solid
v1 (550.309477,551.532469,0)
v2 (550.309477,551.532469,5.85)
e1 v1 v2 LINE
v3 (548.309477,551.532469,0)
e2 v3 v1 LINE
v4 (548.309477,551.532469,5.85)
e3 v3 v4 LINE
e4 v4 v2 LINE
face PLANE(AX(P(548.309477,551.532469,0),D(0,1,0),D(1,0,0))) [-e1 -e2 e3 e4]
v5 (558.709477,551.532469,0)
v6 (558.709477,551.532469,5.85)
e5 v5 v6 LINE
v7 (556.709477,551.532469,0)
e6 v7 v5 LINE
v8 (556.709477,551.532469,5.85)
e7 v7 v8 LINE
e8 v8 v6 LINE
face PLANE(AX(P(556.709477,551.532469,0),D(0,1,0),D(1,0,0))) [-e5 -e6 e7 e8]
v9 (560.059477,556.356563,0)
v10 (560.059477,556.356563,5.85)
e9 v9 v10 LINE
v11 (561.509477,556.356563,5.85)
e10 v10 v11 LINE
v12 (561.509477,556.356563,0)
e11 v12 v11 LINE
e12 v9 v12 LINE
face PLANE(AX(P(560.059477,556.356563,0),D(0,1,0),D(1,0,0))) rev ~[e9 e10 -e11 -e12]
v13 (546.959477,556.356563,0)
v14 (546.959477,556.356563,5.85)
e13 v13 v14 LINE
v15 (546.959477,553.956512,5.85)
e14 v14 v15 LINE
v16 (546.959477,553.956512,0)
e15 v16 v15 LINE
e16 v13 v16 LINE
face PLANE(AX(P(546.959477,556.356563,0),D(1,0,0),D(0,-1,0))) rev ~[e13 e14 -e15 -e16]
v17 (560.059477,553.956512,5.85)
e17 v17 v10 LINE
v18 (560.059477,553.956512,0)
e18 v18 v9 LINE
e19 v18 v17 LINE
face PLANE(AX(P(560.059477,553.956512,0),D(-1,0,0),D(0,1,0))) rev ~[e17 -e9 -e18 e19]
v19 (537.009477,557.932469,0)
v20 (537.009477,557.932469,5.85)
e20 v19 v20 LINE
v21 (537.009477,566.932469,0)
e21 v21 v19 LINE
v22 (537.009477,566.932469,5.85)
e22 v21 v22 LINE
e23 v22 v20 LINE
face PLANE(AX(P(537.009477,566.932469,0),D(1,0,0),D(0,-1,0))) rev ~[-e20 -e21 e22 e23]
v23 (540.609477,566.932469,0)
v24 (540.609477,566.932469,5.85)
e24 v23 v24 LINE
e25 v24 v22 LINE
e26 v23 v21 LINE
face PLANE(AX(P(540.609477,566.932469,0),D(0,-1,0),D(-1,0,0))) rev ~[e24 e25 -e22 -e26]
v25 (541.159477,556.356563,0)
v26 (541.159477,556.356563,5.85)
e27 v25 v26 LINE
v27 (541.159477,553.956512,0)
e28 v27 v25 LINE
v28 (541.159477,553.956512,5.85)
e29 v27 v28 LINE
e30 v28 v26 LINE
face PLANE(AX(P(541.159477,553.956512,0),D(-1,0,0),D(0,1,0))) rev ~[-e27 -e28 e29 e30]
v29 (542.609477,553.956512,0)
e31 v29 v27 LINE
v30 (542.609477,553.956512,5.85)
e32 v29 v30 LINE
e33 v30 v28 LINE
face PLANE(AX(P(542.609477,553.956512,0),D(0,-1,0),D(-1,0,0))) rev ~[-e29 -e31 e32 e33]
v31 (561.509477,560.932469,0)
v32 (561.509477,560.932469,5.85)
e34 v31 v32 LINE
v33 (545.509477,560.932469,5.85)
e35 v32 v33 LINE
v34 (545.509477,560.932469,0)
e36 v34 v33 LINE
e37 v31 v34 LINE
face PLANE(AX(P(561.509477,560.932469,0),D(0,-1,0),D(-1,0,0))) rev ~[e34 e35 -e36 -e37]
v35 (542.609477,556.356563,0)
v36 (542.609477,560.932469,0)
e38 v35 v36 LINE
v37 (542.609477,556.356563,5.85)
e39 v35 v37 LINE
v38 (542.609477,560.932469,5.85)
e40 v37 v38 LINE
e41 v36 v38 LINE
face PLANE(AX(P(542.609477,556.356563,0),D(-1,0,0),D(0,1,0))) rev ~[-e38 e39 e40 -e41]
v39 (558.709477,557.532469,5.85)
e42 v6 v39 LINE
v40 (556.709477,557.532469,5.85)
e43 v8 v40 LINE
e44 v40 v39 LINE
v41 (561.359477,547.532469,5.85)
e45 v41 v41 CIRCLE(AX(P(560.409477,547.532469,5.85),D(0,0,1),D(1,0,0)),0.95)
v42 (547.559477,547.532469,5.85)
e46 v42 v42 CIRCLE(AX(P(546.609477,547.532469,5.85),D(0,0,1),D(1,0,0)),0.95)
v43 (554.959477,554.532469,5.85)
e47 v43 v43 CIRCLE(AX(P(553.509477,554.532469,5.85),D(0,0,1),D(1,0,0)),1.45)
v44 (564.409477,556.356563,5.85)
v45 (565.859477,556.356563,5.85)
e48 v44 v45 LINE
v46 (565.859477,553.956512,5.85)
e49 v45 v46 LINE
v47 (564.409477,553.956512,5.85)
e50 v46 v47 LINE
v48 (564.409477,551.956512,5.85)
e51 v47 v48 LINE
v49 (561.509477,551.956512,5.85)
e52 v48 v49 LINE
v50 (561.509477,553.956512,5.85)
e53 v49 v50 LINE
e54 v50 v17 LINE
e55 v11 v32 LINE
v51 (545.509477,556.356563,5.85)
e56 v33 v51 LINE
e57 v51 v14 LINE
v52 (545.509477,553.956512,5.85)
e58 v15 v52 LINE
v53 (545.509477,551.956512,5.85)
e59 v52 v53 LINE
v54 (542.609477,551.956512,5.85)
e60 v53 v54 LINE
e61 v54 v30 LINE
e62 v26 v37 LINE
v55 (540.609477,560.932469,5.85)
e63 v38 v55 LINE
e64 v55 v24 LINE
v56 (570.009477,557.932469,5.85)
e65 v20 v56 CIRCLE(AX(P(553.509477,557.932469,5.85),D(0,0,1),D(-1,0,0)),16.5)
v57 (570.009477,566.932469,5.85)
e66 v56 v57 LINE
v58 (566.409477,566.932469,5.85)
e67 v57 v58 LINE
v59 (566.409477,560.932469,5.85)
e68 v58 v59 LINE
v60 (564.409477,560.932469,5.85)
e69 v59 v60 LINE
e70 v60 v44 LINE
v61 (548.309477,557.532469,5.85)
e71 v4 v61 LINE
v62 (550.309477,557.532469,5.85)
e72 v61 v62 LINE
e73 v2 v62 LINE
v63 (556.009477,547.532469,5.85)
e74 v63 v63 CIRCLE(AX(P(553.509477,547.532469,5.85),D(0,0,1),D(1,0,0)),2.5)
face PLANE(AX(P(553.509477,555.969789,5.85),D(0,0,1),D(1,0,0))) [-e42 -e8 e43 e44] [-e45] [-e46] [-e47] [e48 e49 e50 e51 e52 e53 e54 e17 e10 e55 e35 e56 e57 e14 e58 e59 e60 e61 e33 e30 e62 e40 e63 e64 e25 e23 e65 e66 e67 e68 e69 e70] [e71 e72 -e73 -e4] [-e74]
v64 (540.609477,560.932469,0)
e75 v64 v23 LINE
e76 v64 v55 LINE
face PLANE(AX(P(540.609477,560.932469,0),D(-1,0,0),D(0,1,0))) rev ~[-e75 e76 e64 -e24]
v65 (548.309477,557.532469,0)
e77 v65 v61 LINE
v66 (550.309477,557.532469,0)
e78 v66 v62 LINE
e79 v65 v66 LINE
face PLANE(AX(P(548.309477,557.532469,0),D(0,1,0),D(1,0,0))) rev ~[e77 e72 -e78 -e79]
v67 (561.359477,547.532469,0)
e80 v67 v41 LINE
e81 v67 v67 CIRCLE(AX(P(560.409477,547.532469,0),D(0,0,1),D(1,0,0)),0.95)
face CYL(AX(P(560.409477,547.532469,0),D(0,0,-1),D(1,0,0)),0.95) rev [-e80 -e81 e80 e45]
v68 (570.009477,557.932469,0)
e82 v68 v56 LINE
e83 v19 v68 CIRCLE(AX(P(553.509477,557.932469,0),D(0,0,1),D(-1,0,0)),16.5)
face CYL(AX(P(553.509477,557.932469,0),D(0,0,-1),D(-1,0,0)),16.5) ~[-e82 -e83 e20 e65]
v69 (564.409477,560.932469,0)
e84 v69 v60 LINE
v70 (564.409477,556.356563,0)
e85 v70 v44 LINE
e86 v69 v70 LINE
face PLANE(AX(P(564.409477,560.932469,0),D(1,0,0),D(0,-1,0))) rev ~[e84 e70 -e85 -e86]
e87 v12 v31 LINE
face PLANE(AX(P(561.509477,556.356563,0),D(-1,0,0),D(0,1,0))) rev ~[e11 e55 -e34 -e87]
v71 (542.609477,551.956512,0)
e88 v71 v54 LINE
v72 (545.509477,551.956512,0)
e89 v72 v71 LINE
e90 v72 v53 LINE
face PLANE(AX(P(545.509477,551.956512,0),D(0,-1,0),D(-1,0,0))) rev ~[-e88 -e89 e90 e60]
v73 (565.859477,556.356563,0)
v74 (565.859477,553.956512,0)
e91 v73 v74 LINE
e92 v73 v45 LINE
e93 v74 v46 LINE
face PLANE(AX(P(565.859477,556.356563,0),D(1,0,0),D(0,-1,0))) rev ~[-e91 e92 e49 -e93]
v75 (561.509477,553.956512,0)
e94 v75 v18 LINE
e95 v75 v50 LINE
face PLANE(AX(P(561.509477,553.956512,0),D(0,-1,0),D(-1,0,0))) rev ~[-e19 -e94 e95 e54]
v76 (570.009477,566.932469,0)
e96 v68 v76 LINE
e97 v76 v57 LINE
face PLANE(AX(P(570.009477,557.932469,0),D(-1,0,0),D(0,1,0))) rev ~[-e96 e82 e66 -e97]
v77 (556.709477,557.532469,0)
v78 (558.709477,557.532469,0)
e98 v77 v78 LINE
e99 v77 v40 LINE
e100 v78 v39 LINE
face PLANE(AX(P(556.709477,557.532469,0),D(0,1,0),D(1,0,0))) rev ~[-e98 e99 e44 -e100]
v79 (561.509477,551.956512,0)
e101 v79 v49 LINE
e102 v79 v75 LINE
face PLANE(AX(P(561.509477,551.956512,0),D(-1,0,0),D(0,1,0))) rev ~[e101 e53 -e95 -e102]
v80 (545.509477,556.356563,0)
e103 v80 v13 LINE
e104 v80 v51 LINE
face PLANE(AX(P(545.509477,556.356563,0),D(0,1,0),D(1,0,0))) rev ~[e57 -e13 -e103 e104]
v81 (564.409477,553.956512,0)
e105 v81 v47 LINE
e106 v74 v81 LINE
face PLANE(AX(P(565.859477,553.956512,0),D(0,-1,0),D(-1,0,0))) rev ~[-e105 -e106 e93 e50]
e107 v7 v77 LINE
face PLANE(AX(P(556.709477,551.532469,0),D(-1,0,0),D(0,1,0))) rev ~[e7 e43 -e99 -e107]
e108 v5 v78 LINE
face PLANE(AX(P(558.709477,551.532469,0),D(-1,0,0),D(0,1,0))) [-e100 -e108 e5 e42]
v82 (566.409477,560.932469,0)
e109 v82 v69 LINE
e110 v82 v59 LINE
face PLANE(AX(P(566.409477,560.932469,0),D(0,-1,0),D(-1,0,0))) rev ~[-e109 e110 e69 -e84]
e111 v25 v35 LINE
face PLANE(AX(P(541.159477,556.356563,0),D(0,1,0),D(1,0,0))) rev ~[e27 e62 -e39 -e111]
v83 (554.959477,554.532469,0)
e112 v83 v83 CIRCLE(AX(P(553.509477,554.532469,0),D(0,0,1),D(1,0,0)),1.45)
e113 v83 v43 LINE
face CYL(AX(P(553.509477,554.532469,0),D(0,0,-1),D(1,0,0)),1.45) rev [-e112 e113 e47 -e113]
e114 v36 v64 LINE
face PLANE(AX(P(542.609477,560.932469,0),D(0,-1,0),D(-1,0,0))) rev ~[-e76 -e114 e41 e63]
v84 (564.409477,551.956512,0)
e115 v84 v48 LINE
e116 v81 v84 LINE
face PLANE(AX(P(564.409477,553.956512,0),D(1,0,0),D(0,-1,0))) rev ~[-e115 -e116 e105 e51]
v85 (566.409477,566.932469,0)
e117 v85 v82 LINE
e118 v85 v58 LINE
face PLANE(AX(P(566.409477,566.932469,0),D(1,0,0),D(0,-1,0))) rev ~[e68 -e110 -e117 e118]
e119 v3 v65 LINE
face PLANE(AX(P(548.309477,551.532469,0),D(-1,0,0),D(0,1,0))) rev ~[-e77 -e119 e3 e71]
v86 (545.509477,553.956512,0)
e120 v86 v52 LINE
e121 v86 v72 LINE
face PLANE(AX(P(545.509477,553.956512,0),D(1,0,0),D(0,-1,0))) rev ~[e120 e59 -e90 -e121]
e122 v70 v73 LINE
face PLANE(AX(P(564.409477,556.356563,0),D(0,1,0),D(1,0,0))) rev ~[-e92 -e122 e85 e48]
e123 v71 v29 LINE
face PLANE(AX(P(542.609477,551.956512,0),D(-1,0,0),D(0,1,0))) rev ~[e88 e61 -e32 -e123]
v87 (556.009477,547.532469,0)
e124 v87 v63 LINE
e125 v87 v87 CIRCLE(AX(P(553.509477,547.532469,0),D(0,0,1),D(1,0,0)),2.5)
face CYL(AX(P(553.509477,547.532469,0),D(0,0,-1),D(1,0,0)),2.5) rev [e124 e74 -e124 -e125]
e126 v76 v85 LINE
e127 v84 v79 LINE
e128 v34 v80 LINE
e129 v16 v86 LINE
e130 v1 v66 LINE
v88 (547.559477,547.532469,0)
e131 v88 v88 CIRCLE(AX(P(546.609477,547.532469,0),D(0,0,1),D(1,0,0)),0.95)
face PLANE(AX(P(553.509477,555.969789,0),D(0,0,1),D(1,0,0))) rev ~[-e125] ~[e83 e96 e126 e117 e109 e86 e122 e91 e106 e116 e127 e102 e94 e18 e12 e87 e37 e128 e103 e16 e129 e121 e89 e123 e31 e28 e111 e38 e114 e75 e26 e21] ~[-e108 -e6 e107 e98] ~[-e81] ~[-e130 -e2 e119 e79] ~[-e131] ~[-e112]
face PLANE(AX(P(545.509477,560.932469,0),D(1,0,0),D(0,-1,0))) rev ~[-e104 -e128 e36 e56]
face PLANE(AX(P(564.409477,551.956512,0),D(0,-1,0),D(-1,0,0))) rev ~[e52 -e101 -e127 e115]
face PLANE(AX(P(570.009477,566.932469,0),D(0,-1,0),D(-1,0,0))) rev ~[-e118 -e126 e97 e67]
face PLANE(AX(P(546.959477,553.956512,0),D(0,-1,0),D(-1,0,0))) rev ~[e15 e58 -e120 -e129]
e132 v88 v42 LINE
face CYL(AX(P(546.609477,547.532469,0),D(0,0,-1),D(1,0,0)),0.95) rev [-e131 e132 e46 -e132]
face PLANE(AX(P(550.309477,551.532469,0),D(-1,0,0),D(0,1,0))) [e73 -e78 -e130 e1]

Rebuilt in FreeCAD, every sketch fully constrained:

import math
import FreeCAD as App
import Part
import Sketcher
Q = App.Units.Quantity

doc = App.newDocument("Part")
params = doc.addObject("Spreadsheet::Sheet", "Params")
for row, (alias, value) in enumerate([
    ("sketch1_diameter", "5 mm"),
    ("sketch1_diameter2", "1.9 mm"),
    ("sketch1_diameter3", "2.9 mm"),
    ("sketch1_radius", "16.5 mm"),
    ("sketch1_width", "2 mm"),
    ("pad1_length", "5.85 mm"),
], start=1):
    params.set(f"A{row}", alias)
    params.set(f"B{row}", "=" + value)
    params.setAlias(f"B{row}", alias)

body = doc.addObject("PartDesign::Body", "Body")

# Sketch on XY plane
sketch1 = doc.addObject("Sketcher::SketchObject", "Sketch")
body.addObject(sketch1)
sketch1.AttachmentSupport = (doc.XY_Plane, [""])
sketch1.MapMode = "FlatFace"
sketch1.addGeometry([
    Part.LineSegment(App.Vector(545.5, 560.9, 0), App.Vector(545.5, 556.4, 0)),  # 0
    Part.LineSegment(App.Vector(545.5, 556.4, 0), App.Vector(547, 556.4, 0)),  # 1
    Part.LineSegment(App.Vector(547, 556.4, 0), App.Vector(547, 554, 0)),  # 2
    Part.LineSegment(App.Vector(547, 554, 0), App.Vector(545.5, 554, 0)),  # 3
    Part.LineSegment(App.Vector(545.5, 554, 0), App.Vector(545.5, 552, 0)),  # 4
    Part.LineSegment(App.Vector(545.5, 552, 0), App.Vector(542.6, 552, 0)),  # 5
    Part.LineSegment(App.Vector(542.6, 552, 0), App.Vector(542.6, 554, 0)),  # 6
    Part.LineSegment(App.Vector(542.6, 554, 0), App.Vector(541.2, 554, 0)),  # 7
    Part.LineSegment(App.Vector(541.2, 554, 0), App.Vector(541.2, 556.4, 0)),  # 8
    Part.LineSegment(App.Vector(541.2, 556.4, 0), App.Vector(542.6, 556.4, 0)),  # 9
    Part.LineSegment(App.Vector(542.6, 556.4, 0), App.Vector(542.6, 560.9, 0)),  # 10
    Part.LineSegment(App.Vector(542.6, 560.9, 0), App.Vector(540.6, 560.9, 0)),  # 11
    Part.LineSegment(App.Vector(540.6, 560.9, 0), App.Vector(540.6, 566.9, 0)),  # 12
    Part.LineSegment(App.Vector(540.6, 566.9, 0), App.Vector(537, 566.9, 0)),  # 13
    Part.LineSegment(App.Vector(537, 566.9, 0), App.Vector(537, 557.9, 0)),  # 14
    Part.ArcOfCircle(Part.Circle(App.Vector(553.5, 557.9, 0), App.Vector(0, 0, 1), 16.5), math.radians(180), math.radians(360)),  # 15
    Part.LineSegment(App.Vector(570, 557.9, 0), App.Vector(570, 566.9, 0)),  # 16
    Part.LineSegment(App.Vector(570, 566.9, 0), App.Vector(566.4, 566.9, 0)),  # 17
    Part.LineSegment(App.Vector(566.4, 566.9, 0), App.Vector(566.4, 560.9, 0)),  # 18
    Part.LineSegment(App.Vector(566.4, 560.9, 0), App.Vector(564.4, 560.9, 0)),  # 19
    Part.LineSegment(App.Vector(564.4, 560.9, 0), App.Vector(564.4, 556.4, 0)),  # 20
    Part.LineSegment(App.Vector(564.4, 556.4, 0), App.Vector(565.9, 556.4, 0)),  # 21
    Part.LineSegment(App.Vector(565.9, 556.4, 0), App.Vector(565.9, 554, 0)),  # 22
    Part.LineSegment(App.Vector(565.9, 554, 0), App.Vector(564.4, 554, 0)),  # 23
    Part.LineSegment(App.Vector(564.4, 554, 0), App.Vector(564.4, 552, 0)),  # 24
    Part.LineSegment(App.Vector(564.4, 552, 0), App.Vector(561.5, 552, 0)),  # 25
    Part.LineSegment(App.Vector(561.5, 552, 0), App.Vector(561.5, 554, 0)),  # 26
    Part.LineSegment(App.Vector(561.5, 554, 0), App.Vector(560.1, 554, 0)),  # 27
    Part.LineSegment(App.Vector(560.1, 554, 0), App.Vector(560.1, 556.4, 0)),  # 28
    Part.LineSegment(App.Vector(560.1, 556.4, 0), App.Vector(561.5, 556.4, 0)),  # 29
    Part.LineSegment(App.Vector(561.5, 556.4, 0), App.Vector(561.5, 560.9, 0)),  # 30
    Part.LineSegment(App.Vector(561.5, 560.9, 0), App.Vector(545.5, 560.9, 0)),  # 31
    Part.Circle(App.Vector(546.6, 547.5, 0), App.Vector(0, 0, 1), 0.9),  # 32
    Part.Circle(App.Vector(553.5, 547.5, 0), App.Vector(0, 0, 1), 2.5),  # 33
    Part.Circle(App.Vector(560.4, 547.5, 0), App.Vector(0, 0, 1), 0.9),  # 34
    Part.LineSegment(App.Vector(550.3, 551.5, 0), App.Vector(548.3, 551.5, 0)),  # 35
    Part.LineSegment(App.Vector(548.3, 551.5, 0), App.Vector(548.3, 557.5, 0)),  # 36
    Part.LineSegment(App.Vector(548.3, 557.5, 0), App.Vector(550.3, 557.5, 0)),  # 37
    Part.LineSegment(App.Vector(550.3, 557.5, 0), App.Vector(550.3, 551.5, 0)),  # 38
    Part.Circle(App.Vector(553.5, 554.5, 0), App.Vector(0, 0, 1), 1.4),  # 39
    Part.LineSegment(App.Vector(558.7, 551.5, 0), App.Vector(556.7, 551.5, 0)),  # 40
    Part.LineSegment(App.Vector(556.7, 551.5, 0), App.Vector(556.7, 557.5, 0)),  # 41
    Part.LineSegment(App.Vector(556.7, 557.5, 0), App.Vector(558.7, 557.5, 0)),  # 42
    Part.LineSegment(App.Vector(558.7, 557.5, 0), App.Vector(558.7, 551.5, 0)),  # 43
], False)
sketch1.addConstraint([
    Sketcher.Constraint("Coincident", 0, 2, 1, 1),
    Sketcher.Constraint("Coincident", 1, 2, 2, 1),
    Sketcher.Constraint("Coincident", 2, 2, 3, 1),
    Sketcher.Constraint("Coincident", 3, 2, 4, 1),
    Sketcher.Constraint("Coincident", 4, 2, 5, 1),
    Sketcher.Constraint("Coincident", 5, 2, 6, 1),
    Sketcher.Constraint("Coincident", 6, 2, 7, 1),
    Sketcher.Constraint("Coincident", 7, 2, 8, 1),
    Sketcher.Constraint("Coincident", 8, 2, 9, 1),
    Sketcher.Constraint("Coincident", 9, 2, 10, 1),
    Sketcher.Constraint("Coincident", 10, 2, 11, 1),
    Sketcher.Constraint("Coincident", 11, 2, 12, 1),
    Sketcher.Constraint("Coincident", 12, 2, 13, 1),
    Sketcher.Constraint("Coincident", 13, 2, 14, 1),
    Sketcher.Constraint("Tangent", 14, 2, 15, 1),
    Sketcher.Constraint("Tangent", 15, 2, 16, 1),
    Sketcher.Constraint("Coincident", 16, 2, 17, 1),
    Sketcher.Constraint("Coincident", 17, 2, 18, 1),
    Sketcher.Constraint("Coincident", 18, 2, 19, 1),
    Sketcher.Constraint("Coincident", 19, 2, 20, 1),
    Sketcher.Constraint("Coincident", 20, 2, 21, 1),
    Sketcher.Constraint("Coincident", 21, 2, 22, 1),
    Sketcher.Constraint("Coincident", 22, 2, 23, 1),
    Sketcher.Constraint("Coincident", 23, 2, 24, 1),
    Sketcher.Constraint("Coincident", 24, 2, 25, 1),
    Sketcher.Constraint("Coincident", 25, 2, 26, 1),
    Sketcher.Constraint("Coincident", 26, 2, 27, 1),
    Sketcher.Constraint("Coincident", 27, 2, 28, 1),
    Sketcher.Constraint("Coincident", 28, 2, 29, 1),
    Sketcher.Constraint("Coincident", 29, 2, 30, 1),
    Sketcher.Constraint("Coincident", 30, 2, 31, 1),
    Sketcher.Constraint("Coincident", 31, 2, 0, 1),
    Sketcher.Constraint("Coincident", 35, 2, 36, 1),
    Sketcher.Constraint("Coincident", 36, 2, 37, 1),
    Sketcher.Constraint("Coincident", 37, 2, 38, 1),
    Sketcher.Constraint("Coincident", 38, 2, 35, 1),
    Sketcher.Constraint("Coincident", 40, 2, 41, 1),
    Sketcher.Constraint("Coincident", 41, 2, 42, 1),
    Sketcher.Constraint("Coincident", 42, 2, 43, 1),
    Sketcher.Constraint("Coincident", 43, 2, 40, 1),
    Sketcher.Constraint("Vertical", 0),
    Sketcher.Constraint("Horizontal", 1),
    Sketcher.Constraint("Vertical", 2),
    Sketcher.Constraint("Horizontal", 3),
    Sketcher.Constraint("Vertical", 4),
    Sketcher.Constraint("Horizontal", 5),
    Sketcher.Constraint("Vertical", 6),
    Sketcher.Constraint("Horizontal", 7),
    Sketcher.Constraint("Vertical", 8),
    Sketcher.Constraint("Horizontal", 9),
    Sketcher.Constraint("Vertical", 10),
    Sketcher.Constraint("Horizontal", 11),
    Sketcher.Constraint("Vertical", 12),
    Sketcher.Constraint("Horizontal", 13),
    Sketcher.Constraint("Vertical", 14),
    Sketcher.Constraint("Vertical", 16),
    Sketcher.Constraint("Horizontal", 17),
    Sketcher.Constraint("Vertical", 18),
    Sketcher.Constraint("Horizontal", 19),
    Sketcher.Constraint("Vertical", 20),
    Sketcher.Constraint("Horizontal", 21),
    Sketcher.Constraint("Vertical", 22),
    Sketcher.Constraint("Horizontal", 23),
    Sketcher.Constraint("Vertical", 24),
    Sketcher.Constraint("Horizontal", 25),
    Sketcher.Constraint("Vertical", 26),
    Sketcher.Constraint("Horizontal", 27),
    Sketcher.Constraint("Vertical", 28),
    Sketcher.Constraint("Horizontal", 29),
    Sketcher.Constraint("Vertical", 30),
    Sketcher.Constraint("Horizontal", 31),
    Sketcher.Constraint("Horizontal", 35),
    Sketcher.Constraint("Vertical", 36),
    Sketcher.Constraint("Horizontal", 37),
    Sketcher.Constraint("Vertical", 38),
    Sketcher.Constraint("Horizontal", 40),
    Sketcher.Constraint("Vertical", 41),
    Sketcher.Constraint("Horizontal", 42),
    Sketcher.Constraint("Vertical", 43),
    Sketcher.Constraint("Equal", 32, 34),
    Sketcher.Constraint("Horizontal", 32, 3, 33, 3),
    Sketcher.Constraint("Horizontal", 33, 3, 34, 3),
    Sketcher.Constraint("Horizontal", 3, 2, 6, 2),
    Sketcher.Constraint("Horizontal", 1, 2, 8, 2),
    Sketcher.Constraint("Horizontal", 13, 2, 16, 2),
    Sketcher.Constraint("Horizontal", 11, 2, 18, 2),
    Sketcher.Constraint("Horizontal", 9, 2, 20, 2),
    Sketcher.Constraint("Horizontal", 7, 2, 22, 2),
    Sketcher.Constraint("Horizontal", 5, 2, 24, 2),
    Sketcher.Constraint("Horizontal", 23, 2, 26, 2),
    Sketcher.Constraint("Horizontal", 21, 2, 28, 2),
    Sketcher.Constraint("Horizontal", 19, 2, 30, 2),
    Sketcher.Constraint("Horizontal", 38, 2, 40, 2),
    Sketcher.Constraint("Horizontal", 37, 2, 41, 2),
    Sketcher.Constraint("Vertical", 15, 3, 33, 3),
    Sketcher.Constraint("Vertical", 33, 3, 39, 3),
    Sketcher.Constraint("Vertical", 0, 2, 3, 2),
    Sketcher.Constraint("Vertical", 6, 2, 9, 2),
    Sketcher.Constraint("Vertical", 20, 2, 23, 2),
    Sketcher.Constraint("Vertical", 26, 2, 29, 2),
    Sketcher.Constraint("Equal", 3, 7),
    Sketcher.Constraint("Equal", 13, 17),
    Sketcher.Constraint("Equal", 11, 19),
    Sketcher.Constraint("Equal", 9, 21),
    Sketcher.Constraint("Equal", 5, 25),
    Sketcher.Constraint("Equal", 23, 27),
    Sketcher.Constraint("Equal", 19, 35),
    Sketcher.Constraint("Equal", 37, 40),
    Sketcher.Constraint("Equal", 42, 4),
    Sketcher.Constraint("Equal", 18, 36),
    Sketcher.Constraint("Diameter", 33, Q("5 mm")),
    Sketcher.Constraint("Diameter", 32, Q("1.9 mm")),
    Sketcher.Constraint("Diameter", 39, Q("2.9 mm")),
    Sketcher.Constraint("Radius", 15, Q("16.5 mm")),
    Sketcher.Constraint("DistanceX", 11, 2, 11, 1, Q("2 mm")),
    Sketcher.Constraint("DistanceX", 31, 2, 31, 1, Q("16 mm")),
    Sketcher.Constraint("DistanceY", 12, 1, 12, 2, Q("6 mm")),
    Sketcher.Constraint("DistanceY", 14, 2, 14, 1, Q("9 mm")),
    Sketcher.Constraint("DistanceX", 5, 2, 5, 1, Q("2.9 mm")),
    Sketcher.Constraint("DistanceY", 33, 3, 39, 3, Q("7 mm")),
    Sketcher.Constraint("DistanceX", 5, 2, 32, 3, Q("4 mm")),
    Sketcher.Constraint("DistanceX", 34, 3, 17, 2, Q("6 mm")),
    Sketcher.Constraint("DistanceY", 32, 3, 35, 2, Q("4 mm")),
    Sketcher.Constraint("DistanceX", 1, 1, 1, 2, Q("1.45 mm")),
    Sketcher.Constraint("DistanceY", 32, 3, 15, 3, Q("10.4 mm")),
    Sketcher.Constraint("DistanceX", 4, 2, 35, 2, Q("2.8 mm")),
    Sketcher.Constraint("DistanceX", 39, 3, 40, 2, Q("3.2 mm")),
    Sketcher.Constraint("DistanceY", 2, 2, 2, 1, Q("2.400051 mm")),
    Sketcher.Constraint("DistanceY", 0, 2, 0, 1, Q("4.575906 mm")),
    Sketcher.Constraint("DistanceY", -1, 1, 15, 3, Q("557.932469 mm")),
    Sketcher.Constraint("DistanceX", -1, 1, 15, 3, Q("553.509477 mm")),
])
sketch1.setExpression("Constraints[110]", "Params.sketch1_diameter")
sketch1.setExpression("Constraints[111]", "Params.sketch1_diameter2")
sketch1.setExpression("Constraints[112]", "Params.sketch1_diameter3")
sketch1.setExpression("Constraints[113]", "Params.sketch1_radius")
sketch1.setExpression("Constraints[114]", "Params.sketch1_width")
pad1 = doc.addObject("PartDesign::Pad", "Pad")
body.addObject(pad1)
pad1.Profile = sketch1
pad1.setExpression("Length", "Params.pad1_length")

doc.recompute()
